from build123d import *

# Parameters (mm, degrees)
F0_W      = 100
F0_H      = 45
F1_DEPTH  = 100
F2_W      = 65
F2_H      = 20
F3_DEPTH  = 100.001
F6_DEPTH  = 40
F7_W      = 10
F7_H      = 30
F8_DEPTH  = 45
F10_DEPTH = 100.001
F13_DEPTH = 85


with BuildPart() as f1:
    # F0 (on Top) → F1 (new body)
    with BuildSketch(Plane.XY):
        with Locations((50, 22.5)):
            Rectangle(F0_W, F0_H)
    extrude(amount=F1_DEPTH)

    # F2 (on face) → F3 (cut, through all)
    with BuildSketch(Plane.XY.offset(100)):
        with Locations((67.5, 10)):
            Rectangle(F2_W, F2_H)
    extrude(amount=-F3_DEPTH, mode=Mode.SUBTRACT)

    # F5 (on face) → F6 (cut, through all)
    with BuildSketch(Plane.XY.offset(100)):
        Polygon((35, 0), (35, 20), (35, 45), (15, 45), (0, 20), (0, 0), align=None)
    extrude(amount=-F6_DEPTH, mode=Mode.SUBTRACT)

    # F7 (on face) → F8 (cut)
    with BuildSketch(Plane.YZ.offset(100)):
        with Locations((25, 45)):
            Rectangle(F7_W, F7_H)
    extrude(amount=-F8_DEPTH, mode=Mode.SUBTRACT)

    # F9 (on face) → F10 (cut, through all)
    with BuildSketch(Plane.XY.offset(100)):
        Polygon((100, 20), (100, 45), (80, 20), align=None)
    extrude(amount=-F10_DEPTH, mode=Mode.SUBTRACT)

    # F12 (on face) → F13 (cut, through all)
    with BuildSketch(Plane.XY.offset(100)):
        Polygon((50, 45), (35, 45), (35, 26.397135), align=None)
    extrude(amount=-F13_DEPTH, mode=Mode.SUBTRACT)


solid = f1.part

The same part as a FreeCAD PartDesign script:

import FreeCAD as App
import Part
import Sketcher

doc = App.newDocument("Part")
params = doc.addObject("Spreadsheet::Sheet", "Params")
for row, (alias, value) in enumerate([
    ("sketch1_width", "100 mm"),
    ("sketch1_height", "45 mm"),
    ("pad1_length", "100 mm"),
    ("sketch2_width", "65 mm"),
    ("sketch2_height", "20 mm"),
    ("sketch3_width", "20 mm"),
    ("sketch3_width2", "35 mm"),
    ("sketch3_height", "45 mm"),
    ("pocket2_length", "40 mm"),
    ("sketch4_width", "10 mm"),
    ("sketch4_height", "30 mm"),
    ("pocket3_length", "45 mm"),
    ("sketch5_width", "20 mm"),
    ("sketch5_height", "25 mm"),
    ("sketch6_width", "15 mm"),
    ("pocket5_length", "85 mm"),
], start=1):
    params.set(f"A{row}", alias)
    params.set(f"B{row}", "=" + value)
    params.setAlias(f"B{row}", alias)

body = doc.addObject("PartDesign::Body", "Body")

# Sketch on XY plane
sketch1 = body.newObject("Sketcher::SketchObject", "Sketch")
sketch1.AttachmentSupport = (doc.getObject("XY_Plane"), [""])
sketch1.MapMode = "FlatFace"
sketch1.addGeometry(Part.LineSegment(App.Vector(0, 45, 0), App.Vector(0, 0, 0)), False)
sketch1.addGeometry(Part.LineSegment(App.Vector(0, 0, 0), App.Vector(100, 0, 0)), False)
sketch1.addGeometry(Part.LineSegment(App.Vector(100, 0, 0), App.Vector(100, 45, 0)), False)
sketch1.addGeometry(Part.LineSegment(App.Vector(100, 45, 0), App.Vector(0, 45, 0)), False)
sketch1.addConstraint(Sketcher.Constraint("Coincident", 0, 2, 1, 1))
sketch1.addConstraint(Sketcher.Constraint("Coincident", 1, 2, 2, 1))
sketch1.addConstraint(Sketcher.Constraint("Coincident", 2, 2, 3, 1))
sketch1.addConstraint(Sketcher.Constraint("Coincident", 3, 2, 0, 1))
sketch1.addConstraint(Sketcher.Constraint("Vertical", 0))
sketch1.addConstraint(Sketcher.Constraint("Horizontal", 1))
sketch1.addConstraint(Sketcher.Constraint("Vertical", 2))
sketch1.addConstraint(Sketcher.Constraint("Horizontal", 3))
sketch1.addConstraint(Sketcher.Constraint("Coincident", 0, 2, -1, 1))
sketch1.addConstraint(Sketcher.Constraint("DistanceX", 1, 1, 1, 2, 100.0))
sketch1.addConstraint(Sketcher.Constraint("DistanceY", 0, 2, 0, 1, 45.0))
sketch1.setExpression("Constraints[9]", "Params.sketch1_width")
sketch1.setExpression("Constraints[10]", "Params.sketch1_height")
pad1 = body.newObject("PartDesign::Pad", "Pad")
pad1.Profile = sketch1
pad1.setExpression("Length", "Params.pad1_length")

# Sketch on XY plane
sketch2 = body.newObject("Sketcher::SketchObject", "Sketch001")
sketch2.AttachmentSupport = (doc.getObject("XY_Plane"), [""])
sketch2.MapMode = "FlatFace"
sketch2.AttachmentOffset = App.Placement(App.Vector(0, 0, 100), App.Rotation())
sketch2.addGeometry(Part.LineSegment(App.Vector(35, 20, 0), App.Vector(35, 0, 0)), False)
sketch2.addGeometry(Part.LineSegment(App.Vector(35, 0, 0), App.Vector(100, 0, 0)), False)
sketch2.addGeometry(Part.LineSegment(App.Vector(100, 0, 0), App.Vector(100, 20, 0)), False)
sketch2.addGeometry(Part.LineSegment(App.Vector(100, 20, 0), App.Vector(35, 20, 0)), False)
sketch2.addConstraint(Sketcher.Constraint("Coincident", 0, 2, 1, 1))
sketch2.addConstraint(Sketcher.Constraint("Coincident", 1, 2, 2, 1))
sketch2.addConstraint(Sketcher.Constraint("Coincident", 2, 2, 3, 1))
sketch2.addConstraint(Sketcher.Constraint("Coincident", 3, 2, 0, 1))
sketch2.addConstraint(Sketcher.Constraint("Vertical", 0))
sketch2.addConstraint(Sketcher.Constraint("Horizontal", 1))
sketch2.addConstraint(Sketcher.Constraint("Vertical", 2))
sketch2.addConstraint(Sketcher.Constraint("Horizontal", 3))
sketch2.addConstraint(Sketcher.Constraint("PointOnObject", 0, 2, -1))
sketch2.addConstraint(Sketcher.Constraint("DistanceX", 1, 1, 1, 2, 65.0))
sketch2.addConstraint(Sketcher.Constraint("DistanceY", 0, 2, 0, 1, 20.0))
sketch2.addConstraint(Sketcher.Constraint("DistanceX", -1, 1, 0, 2, 35.0))
sketch2.setExpression("Constraints[9]", "Params.sketch2_width")
sketch2.setExpression("Constraints[10]", "Params.sketch2_height")
pocket1 = body.newObject("PartDesign::Pocket", "Pocket")
pocket1.Profile = sketch2
pocket1.Type = "ThroughAll"

# Sketch on XY plane
sketch3 = body.newObject("Sketcher::SketchObject", "Sketch002")
sketch3.AttachmentSupport = (doc.getObject("XY_Plane"), [""])
sketch3.MapMode = "FlatFace"
sketch3.AttachmentOffset = App.Placement(App.Vector(0, 0, 100), App.Rotation())
sketch3.addGeometry(Part.LineSegment(App.Vector(35, 0, 0), App.Vector(35, 45, 0)), False)
sketch3.addGeometry(Part.LineSegment(App.Vector(35, 45, 0), App.Vector(15, 45, 0)), False)
sketch3.addGeometry(Part.LineSegment(App.Vector(15, 45, 0), App.Vector(0, 20, 0)), False)
sketch3.addGeometry(Part.LineSegment(App.Vector(0, 20, 0), App.Vector(0, 0, 0)), False)
sketch3.addGeometry(Part.LineSegment(App.Vector(0, 0, 0), App.Vector(35, 0, 0)), False)
sketch3.addConstraint(Sketcher.Constraint("Coincident", 0, 2, 1, 1))
sketch3.addConstraint(Sketcher.Constraint("Coincident", 1, 2, 2, 1))
sketch3.addConstraint(Sketcher.Constraint("Coincident", 2, 2, 3, 1))
sketch3.addConstraint(Sketcher.Constraint("Coincident", 3, 2, 4, 1))
sketch3.addConstraint(Sketcher.Constraint("Coincident", 4, 2, 0, 1))
sketch3.addConstraint(Sketcher.Constraint("Vertical", 0))
sketch3.addConstraint(Sketcher.Constraint("Horizontal", 1))
sketch3.addConstraint(Sketcher.Constraint("Vertical", 3))
sketch3.addConstraint(Sketcher.Constraint("Horizontal", 4))
sketch3.addConstraint(Sketcher.Constraint("Coincident", 3, 2, -1, 1))
sketch3.addConstraint(Sketcher.Constraint("Equal", 1, 3))
sketch3.addConstraint(Sketcher.Constraint("DistanceX", 1, 2, 1, 1, 20.0))
sketch3.addConstraint(Sketcher.Constraint("DistanceX", 4, 1, 4, 2, 35.0))
sketch3.addConstraint(Sketcher.Constraint("DistanceY", 0, 1, 0, 2, 45.0))
sketch3.setExpression("Constraints[11]", "Params.sketch3_width")
sketch3.setExpression("Constraints[12]", "Params.sketch3_width2")
sketch3.setExpression("Constraints[13]", "Params.sketch3_height")
pocket2 = body.newObject("PartDesign::Pocket", "Pocket001")
pocket2.Profile = sketch3
pocket2.setExpression("Length", "Params.pocket2_length")

# Sketch on YZ plane
sketch4 = body.newObject("Sketcher::SketchObject", "Sketch003")
sketch4.AttachmentSupport = (doc.getObject("YZ_Plane"), [""])
sketch4.MapMode = "FlatFace"
sketch4.AttachmentOffset = App.Placement(App.Vector(0, 0, 100), App.Rotation())
sketch4.addGeometry(Part.LineSegment(App.Vector(20, 60, 0), App.Vector(20, 30, 0)), False)
sketch4.addGeometry(Part.LineSegment(App.Vector(20, 30, 0), App.Vector(30, 30, 0)), False)
sketch4.addGeometry(Part.LineSegment(App.Vector(30, 30, 0), App.Vector(30, 60, 0)), False)
sketch4.addGeometry(Part.LineSegment(App.Vector(30, 60, 0), App.Vector(20, 60, 0)), False)
sketch4.addConstraint(Sketcher.Constraint("Coincident", 0, 2, 1, 1))
sketch4.addConstraint(Sketcher.Constraint("Coincident", 1, 2, 2, 1))
sketch4.addConstraint(Sketcher.Constraint("Coincident", 2, 2, 3, 1))
sketch4.addConstraint(Sketcher.Constraint("Coincident", 3, 2, 0, 1))
sketch4.addConstraint(Sketcher.Constraint("Vertical", 0))
sketch4.addConstraint(Sketcher.Constraint("Horizontal", 1))
sketch4.addConstraint(Sketcher.Constraint("Vertical", 2))
sketch4.addConstraint(Sketcher.Constraint("Horizontal", 3))
sketch4.addConstraint(Sketcher.Constraint("DistanceX", 1, 1, 1, 2, 10.0))
sketch4.addConstraint(Sketcher.Constraint("DistanceY", 0, 2, 0, 1, 30.0))
sketch4.addConstraint(Sketcher.Constraint("DistanceX", -1, 1, 0, 2, 20.0))
sketch4.addConstraint(Sketcher.Constraint("DistanceY", -1, 1, 0, 2, 30.0))
sketch4.setExpression("Constraints[8]", "Params.sketch4_width")
sketch4.setExpression("Constraints[9]", "Params.sketch4_height")
pocket3 = body.newObject("PartDesign::Pocket", "Pocket002")
pocket3.Profile = sketch4
pocket3.setExpression("Length", "Params.pocket3_length")

# Sketch on XY plane
sketch5 = body.newObject("Sketcher::SketchObject", "Sketch004")
sketch5.AttachmentSupport = (doc.getObject("XY_Plane"), [""])
sketch5.MapMode = "FlatFace"
sketch5.AttachmentOffset = App.Placement(App.Vector(0, 0, 100), App.Rotation())
sketch5.addGeometry(Part.LineSegment(App.Vector(100, 20, 0), App.Vector(100, 45, 0)), False)
sketch5.addGeometry(Part.LineSegment(App.Vector(100, 45, 0), App.Vector(80, 20, 0)), False)
sketch5.addGeometry(Part.LineSegment(App.Vector(80, 20, 0), App.Vector(100, 20, 0)), False)
sketch5.addConstraint(Sketcher.Constraint("Coincident", 0, 2, 1, 1))
sketch5.addConstraint(Sketcher.Constraint("Coincident", 1, 2, 2, 1))
sketch5.addConstraint(Sketcher.Constraint("Coincident", 2, 2, 0, 1))
sketch5.addConstraint(Sketcher.Constraint("Vertical", 0))
sketch5.addConstraint(Sketcher.Constraint("Horizontal", 2))
sketch5.addConstraint(Sketcher.Constraint("DistanceX", 2, 1, 2, 2, 20.0))
sketch5.addConstraint(Sketcher.Constraint("DistanceY", 0, 1, 0, 2, 25.0))
sketch5.addConstraint(Sketcher.Constraint("DistanceX", -1, 1, 0, 2, 100.0))
sketch5.addConstraint(Sketcher.Constraint("DistanceY", -1, 1, 0, 2, 45.0))
sketch5.setExpression("Constraints[5]", "Params.sketch5_width")
sketch5.setExpression("Constraints[6]", "Params.sketch5_height")
pocket4 = body.newObject("PartDesign::Pocket", "Pocket003")
pocket4.Profile = sketch5
pocket4.Type = "ThroughAll"

# Sketch on XY plane
sketch6 = body.newObject("Sketcher::SketchObject", "Sketch005")
sketch6.AttachmentSupport = (doc.getObject("XY_Plane"), [""])
sketch6.MapMode = "FlatFace"
sketch6.AttachmentOffset = App.Placement(App.Vector(0, 0, 100), App.Rotation())
sketch6.addGeometry(Part.LineSegment(App.Vector(50, 45, 0), App.Vector(35, 45, 0)), False)
sketch6.addGeometry(Part.LineSegment(App.Vector(35, 45, 0), App.Vector(35, 26, 0)), False)
sketch6.addGeometry(Part.LineSegment(App.Vector(35, 26, 0), App.Vector(50, 45, 0)), False)
sketch6.addConstraint(Sketcher.Constraint("Coincident", 0, 2, 1, 1))
sketch6.addConstraint(Sketcher.Constraint("Coincident", 1, 2, 2, 1))
sketch6.addConstraint(Sketcher.Constraint("Coincident", 2, 2, 0, 1))
sketch6.addConstraint(Sketcher.Constraint("Horizontal", 0))
sketch6.addConstraint(Sketcher.Constraint("Vertical", 1))
sketch6.addConstraint(Sketcher.Constraint("DistanceX", 0, 2, 0, 1, 15.0))
sketch6.addConstraint(Sketcher.Constraint("DistanceX", -1, 1, 0, 2, 35.0))
sketch6.addConstraint(Sketcher.Constraint("DistanceY", -1, 1, 0, 2, 45.0))
sketch6.addConstraint(Sketcher.Constraint("Distance", 2, 23.897))
sketch6.setExpression("Constraints[5]", "Params.sketch6_width")
pocket5 = body.newObject("PartDesign::Pocket", "Pocket004")
pocket5.Profile = sketch6
pocket5.setExpression("Length", "Params.pocket5_length")

doc.recompute()
